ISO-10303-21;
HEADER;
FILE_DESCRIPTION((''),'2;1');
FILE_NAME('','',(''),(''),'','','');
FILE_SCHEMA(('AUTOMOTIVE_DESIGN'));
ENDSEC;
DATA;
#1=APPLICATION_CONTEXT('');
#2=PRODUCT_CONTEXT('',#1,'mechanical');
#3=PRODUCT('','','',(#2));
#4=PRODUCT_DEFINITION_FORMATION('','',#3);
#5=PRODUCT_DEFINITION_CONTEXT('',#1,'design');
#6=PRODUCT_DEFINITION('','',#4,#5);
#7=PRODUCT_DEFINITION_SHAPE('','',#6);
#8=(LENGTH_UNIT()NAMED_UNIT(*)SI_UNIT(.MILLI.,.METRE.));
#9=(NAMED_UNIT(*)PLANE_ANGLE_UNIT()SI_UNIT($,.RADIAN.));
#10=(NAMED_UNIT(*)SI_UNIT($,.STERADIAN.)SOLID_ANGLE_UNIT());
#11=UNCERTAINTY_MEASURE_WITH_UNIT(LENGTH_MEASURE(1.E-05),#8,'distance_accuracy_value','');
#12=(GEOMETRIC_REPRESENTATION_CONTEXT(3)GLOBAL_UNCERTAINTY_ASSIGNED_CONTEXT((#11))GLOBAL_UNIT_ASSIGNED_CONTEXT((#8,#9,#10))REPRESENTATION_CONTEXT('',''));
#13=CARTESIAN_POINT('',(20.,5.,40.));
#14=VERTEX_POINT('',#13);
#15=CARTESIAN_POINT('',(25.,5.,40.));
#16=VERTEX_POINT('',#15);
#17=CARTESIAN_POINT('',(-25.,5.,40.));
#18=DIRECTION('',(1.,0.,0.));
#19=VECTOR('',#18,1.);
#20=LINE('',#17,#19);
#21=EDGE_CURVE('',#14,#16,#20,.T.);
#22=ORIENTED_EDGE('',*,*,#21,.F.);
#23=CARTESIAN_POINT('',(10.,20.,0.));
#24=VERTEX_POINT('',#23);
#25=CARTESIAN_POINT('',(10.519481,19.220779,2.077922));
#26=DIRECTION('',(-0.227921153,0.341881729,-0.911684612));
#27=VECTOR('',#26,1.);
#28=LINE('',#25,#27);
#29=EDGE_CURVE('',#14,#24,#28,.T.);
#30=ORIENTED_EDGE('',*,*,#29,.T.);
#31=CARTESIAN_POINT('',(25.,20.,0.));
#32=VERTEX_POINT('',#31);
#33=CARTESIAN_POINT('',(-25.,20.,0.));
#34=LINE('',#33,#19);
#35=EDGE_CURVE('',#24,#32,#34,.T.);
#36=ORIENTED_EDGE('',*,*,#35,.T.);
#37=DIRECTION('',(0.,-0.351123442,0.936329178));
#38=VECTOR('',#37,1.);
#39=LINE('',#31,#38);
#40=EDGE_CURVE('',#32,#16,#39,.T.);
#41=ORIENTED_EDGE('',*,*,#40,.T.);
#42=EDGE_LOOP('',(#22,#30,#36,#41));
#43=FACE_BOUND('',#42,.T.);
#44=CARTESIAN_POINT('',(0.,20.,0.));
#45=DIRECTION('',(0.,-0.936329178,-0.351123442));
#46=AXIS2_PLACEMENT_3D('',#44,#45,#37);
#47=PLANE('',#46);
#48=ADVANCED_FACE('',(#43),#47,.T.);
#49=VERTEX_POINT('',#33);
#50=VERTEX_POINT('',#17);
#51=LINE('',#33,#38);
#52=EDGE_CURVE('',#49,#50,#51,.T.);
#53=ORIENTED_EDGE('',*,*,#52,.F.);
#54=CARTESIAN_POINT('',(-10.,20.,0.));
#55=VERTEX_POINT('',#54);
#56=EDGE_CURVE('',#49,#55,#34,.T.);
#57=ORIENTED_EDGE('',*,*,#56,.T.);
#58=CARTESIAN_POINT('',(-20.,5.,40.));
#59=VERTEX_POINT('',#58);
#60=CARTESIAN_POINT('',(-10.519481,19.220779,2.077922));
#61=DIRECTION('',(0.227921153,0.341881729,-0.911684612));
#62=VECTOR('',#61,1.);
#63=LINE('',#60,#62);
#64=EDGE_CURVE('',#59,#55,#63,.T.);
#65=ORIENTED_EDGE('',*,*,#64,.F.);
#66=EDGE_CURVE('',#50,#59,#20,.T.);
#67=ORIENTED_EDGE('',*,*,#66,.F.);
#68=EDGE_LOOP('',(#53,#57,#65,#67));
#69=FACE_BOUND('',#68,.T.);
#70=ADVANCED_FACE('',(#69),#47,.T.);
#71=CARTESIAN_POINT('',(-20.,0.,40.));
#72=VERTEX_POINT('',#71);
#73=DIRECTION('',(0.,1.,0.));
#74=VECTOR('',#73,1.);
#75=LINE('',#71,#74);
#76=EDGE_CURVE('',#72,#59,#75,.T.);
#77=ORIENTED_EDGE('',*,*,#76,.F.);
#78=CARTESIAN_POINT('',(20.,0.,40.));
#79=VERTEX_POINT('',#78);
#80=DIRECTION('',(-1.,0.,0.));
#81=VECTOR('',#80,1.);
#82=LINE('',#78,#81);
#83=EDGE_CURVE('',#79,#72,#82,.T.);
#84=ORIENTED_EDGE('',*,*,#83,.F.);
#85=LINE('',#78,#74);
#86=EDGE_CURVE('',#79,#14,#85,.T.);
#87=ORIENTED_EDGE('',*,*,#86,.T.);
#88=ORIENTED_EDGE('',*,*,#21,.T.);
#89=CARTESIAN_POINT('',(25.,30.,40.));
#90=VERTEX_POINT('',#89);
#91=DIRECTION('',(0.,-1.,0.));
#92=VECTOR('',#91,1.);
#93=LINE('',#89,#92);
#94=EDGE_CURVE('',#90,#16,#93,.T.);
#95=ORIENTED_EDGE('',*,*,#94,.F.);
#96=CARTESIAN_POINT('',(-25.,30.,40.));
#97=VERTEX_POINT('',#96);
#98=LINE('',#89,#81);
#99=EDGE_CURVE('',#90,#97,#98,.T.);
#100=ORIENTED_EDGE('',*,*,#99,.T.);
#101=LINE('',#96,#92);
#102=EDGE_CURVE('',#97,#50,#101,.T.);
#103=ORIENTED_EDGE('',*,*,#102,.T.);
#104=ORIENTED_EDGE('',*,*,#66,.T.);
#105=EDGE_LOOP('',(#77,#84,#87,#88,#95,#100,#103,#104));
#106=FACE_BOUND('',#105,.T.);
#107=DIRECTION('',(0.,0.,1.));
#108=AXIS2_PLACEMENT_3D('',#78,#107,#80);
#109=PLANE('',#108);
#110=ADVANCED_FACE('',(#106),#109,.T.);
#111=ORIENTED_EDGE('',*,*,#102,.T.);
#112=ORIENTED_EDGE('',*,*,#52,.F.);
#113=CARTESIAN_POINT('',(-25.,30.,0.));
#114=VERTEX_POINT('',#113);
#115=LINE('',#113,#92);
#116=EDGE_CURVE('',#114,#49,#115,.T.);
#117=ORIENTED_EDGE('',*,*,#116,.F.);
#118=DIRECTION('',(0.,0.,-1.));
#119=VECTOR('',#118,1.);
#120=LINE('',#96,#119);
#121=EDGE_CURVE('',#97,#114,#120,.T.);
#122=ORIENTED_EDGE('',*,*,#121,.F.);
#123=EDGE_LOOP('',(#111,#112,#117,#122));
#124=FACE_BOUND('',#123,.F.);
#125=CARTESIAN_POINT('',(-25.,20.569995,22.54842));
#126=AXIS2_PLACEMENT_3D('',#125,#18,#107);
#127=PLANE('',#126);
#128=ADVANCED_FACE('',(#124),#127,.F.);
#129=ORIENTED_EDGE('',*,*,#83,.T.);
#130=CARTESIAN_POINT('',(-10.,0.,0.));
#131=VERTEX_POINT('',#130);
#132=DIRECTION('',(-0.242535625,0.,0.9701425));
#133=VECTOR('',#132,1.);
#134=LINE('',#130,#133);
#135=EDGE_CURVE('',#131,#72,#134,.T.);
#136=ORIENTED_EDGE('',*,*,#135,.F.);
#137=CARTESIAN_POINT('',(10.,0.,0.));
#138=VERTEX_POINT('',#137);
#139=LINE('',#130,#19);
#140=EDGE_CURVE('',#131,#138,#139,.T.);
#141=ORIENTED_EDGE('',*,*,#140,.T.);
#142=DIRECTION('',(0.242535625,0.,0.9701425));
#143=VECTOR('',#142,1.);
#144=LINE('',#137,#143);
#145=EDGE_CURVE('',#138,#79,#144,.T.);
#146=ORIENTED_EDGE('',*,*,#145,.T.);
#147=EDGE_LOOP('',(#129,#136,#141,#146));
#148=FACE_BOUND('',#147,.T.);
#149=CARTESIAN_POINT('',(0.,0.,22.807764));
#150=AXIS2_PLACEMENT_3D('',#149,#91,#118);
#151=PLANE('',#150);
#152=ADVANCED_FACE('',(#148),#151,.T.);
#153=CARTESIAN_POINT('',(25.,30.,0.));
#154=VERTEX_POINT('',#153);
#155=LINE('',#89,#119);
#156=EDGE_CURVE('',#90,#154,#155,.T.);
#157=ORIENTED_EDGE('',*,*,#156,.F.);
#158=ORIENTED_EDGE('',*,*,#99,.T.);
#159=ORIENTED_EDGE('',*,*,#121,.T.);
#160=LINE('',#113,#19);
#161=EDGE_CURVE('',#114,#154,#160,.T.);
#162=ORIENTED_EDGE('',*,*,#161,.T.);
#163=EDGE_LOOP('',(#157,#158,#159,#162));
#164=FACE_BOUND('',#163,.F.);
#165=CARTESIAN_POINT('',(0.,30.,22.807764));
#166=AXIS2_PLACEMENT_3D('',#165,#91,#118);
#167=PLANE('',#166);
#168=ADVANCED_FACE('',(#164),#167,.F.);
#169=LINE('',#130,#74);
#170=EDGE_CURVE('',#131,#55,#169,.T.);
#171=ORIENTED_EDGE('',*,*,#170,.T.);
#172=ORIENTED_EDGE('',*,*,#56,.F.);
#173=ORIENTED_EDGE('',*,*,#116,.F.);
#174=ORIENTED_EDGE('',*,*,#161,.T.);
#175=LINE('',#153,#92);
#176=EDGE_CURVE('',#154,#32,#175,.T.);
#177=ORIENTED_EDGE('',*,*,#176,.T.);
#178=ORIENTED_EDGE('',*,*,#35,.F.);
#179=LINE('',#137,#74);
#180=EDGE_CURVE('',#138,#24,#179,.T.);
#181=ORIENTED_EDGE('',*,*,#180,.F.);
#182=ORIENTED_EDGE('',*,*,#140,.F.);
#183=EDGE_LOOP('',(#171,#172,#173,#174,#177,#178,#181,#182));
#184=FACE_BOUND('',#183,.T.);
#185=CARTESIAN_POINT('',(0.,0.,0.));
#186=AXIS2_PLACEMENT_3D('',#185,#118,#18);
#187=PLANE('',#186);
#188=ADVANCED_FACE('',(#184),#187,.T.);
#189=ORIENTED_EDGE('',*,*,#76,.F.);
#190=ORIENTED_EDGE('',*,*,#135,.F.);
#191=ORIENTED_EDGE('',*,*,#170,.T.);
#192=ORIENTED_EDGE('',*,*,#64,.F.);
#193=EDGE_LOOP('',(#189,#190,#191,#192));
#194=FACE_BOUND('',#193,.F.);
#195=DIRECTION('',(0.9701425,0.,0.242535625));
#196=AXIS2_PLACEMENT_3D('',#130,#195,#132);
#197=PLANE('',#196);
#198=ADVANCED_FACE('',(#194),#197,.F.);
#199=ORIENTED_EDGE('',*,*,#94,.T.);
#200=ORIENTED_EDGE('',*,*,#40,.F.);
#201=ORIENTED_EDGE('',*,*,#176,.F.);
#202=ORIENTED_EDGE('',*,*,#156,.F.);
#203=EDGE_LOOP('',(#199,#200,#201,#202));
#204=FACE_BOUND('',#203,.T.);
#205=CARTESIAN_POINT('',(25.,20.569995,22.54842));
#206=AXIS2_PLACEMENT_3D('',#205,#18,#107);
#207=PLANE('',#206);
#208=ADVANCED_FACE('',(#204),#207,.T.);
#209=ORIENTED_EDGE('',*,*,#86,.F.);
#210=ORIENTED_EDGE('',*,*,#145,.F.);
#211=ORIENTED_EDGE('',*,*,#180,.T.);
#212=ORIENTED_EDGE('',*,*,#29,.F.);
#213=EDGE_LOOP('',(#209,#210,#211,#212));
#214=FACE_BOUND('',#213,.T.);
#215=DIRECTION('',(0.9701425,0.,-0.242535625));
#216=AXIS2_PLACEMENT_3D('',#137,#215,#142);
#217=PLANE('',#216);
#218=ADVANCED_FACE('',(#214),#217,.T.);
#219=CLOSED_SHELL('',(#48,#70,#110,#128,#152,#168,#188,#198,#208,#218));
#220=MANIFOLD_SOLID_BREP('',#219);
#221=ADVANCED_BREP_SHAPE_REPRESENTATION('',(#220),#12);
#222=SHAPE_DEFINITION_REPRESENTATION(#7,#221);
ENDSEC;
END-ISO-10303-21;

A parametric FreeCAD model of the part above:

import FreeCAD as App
import Part
import Sketcher

doc = App.newDocument("Part")
body = doc.addObject("PartDesign::Body", "Body")

# Sketch on XZ plane
sketch1 = body.newObject("Sketcher::SketchObject", "Sketch")
sketch1.AttachmentSupport = (doc.getObject("XZ_Plane"), [""])
sketch1.MapMode = "FlatFace"
sketch1.addGeometry(Part.LineSegment(App.Vector(-10, 0, 0), App.Vector(10, 0, 0)), False)
sketch1.addGeometry(Part.LineSegment(App.Vector(10, 0, 0), App.Vector(20, 40, 0)), False)
sketch1.addGeometry(Part.LineSegment(App.Vector(20, 40, 0), App.Vector(-20, 40, 0)), False)
sketch1.addGeometry(Part.LineSegment(App.Vector(-20, 40, 0), App.Vector(-10, 0, 0)), False)
sketch1.addConstraint(Sketcher.Constraint("Coincident", 0, 2, 1, 1))
sketch1.addConstraint(Sketcher.Constraint("Coincident", 1, 2, 2, 1))
sketch1.addConstraint(Sketcher.Constraint("Coincident", 2, 2, 3, 1))
sketch1.addConstraint(Sketcher.Constraint("Coincident", 3, 2, 0, 1))
sketch1.addConstraint(Sketcher.Constraint("Horizontal", 0))
sketch1.addConstraint(Sketcher.Constraint("Horizontal", 2))
sketch1.addConstraint(Sketcher.Constraint("Symmetric", 0, 2, 3, 2, -1, 1))
sketch1.addConstraint(Sketcher.Constraint("Equal", 1, 3))
sketch1.addConstraint(Sketcher.Constraint("DistanceX", 0, 1, 0, 2, 20.0))
sketch1.addConstraint(Sketcher.Constraint("DistanceX", 2, 2, 2, 1, 40.0))
sketch1.addConstraint(Sketcher.Constraint("DistanceY", -1, 1, 1, 2, 40.0))
pad1 = body.newObject("PartDesign::Pad", "Pad")
pad1.Profile = sketch1
pad1.Length = 30
pad1.Reversed = True

# Sketch on YZ plane
sketch2 = body.newObject("Sketcher::SketchObject", "Sketch001")
sketch2.AttachmentSupport = (doc.getObject("YZ_Plane"), [""])
sketch2.MapMode = "FlatFace"
sketch2.addGeometry(Part.LineSegment(App.Vector(30, 0, 0), App.Vector(30, 40, 0)), False)
sketch2.addGeometry(Part.LineSegment(App.Vector(30, 40, 0), App.Vector(5, 40, 0)), False)
sketch2.addGeometry(Part.LineSegment(App.Vector(5, 40, 0), App.Vector(20, 0, 0)), False)
sketch2.addGeometry(Part.LineSegment(App.Vector(20, 0, 0), App.Vector(30, 0, 0)), False)
sketch2.addConstraint(Sketcher.Constraint("Coincident", 0, 2, 1, 1))
sketch2.addConstraint(Sketcher.Constraint("Coincident", 1, 2, 2, 1))
sketch2.addConstraint(Sketcher.Constraint("Coincident", 2, 2, 3, 1))
sketch2.addConstraint(Sketcher.Constraint("Coincident", 3, 2, 0, 1))
sketch2.addConstraint(Sketcher.Constraint("Vertical", 0))
sketch2.addConstraint(Sketcher.Constraint("Horizontal", 1))
sketch2.addConstraint(Sketcher.Constraint("Horizontal", 3))
sketch2.addConstraint(Sketcher.Constraint("PointOnObject", 2, 2, -1))
sketch2.addConstraint(Sketcher.Constraint("DistanceX", 1, 2, 1, 1, 25.0))
sketch2.addConstraint(Sketcher.Constraint("DistanceX", 3, 1, 3, 2, 10.0))
sketch2.addConstraint(Sketcher.Constraint("DistanceY", 0, 1, 0, 2, 40.0))
sketch2.addConstraint(Sketcher.Constraint("DistanceX", -1, 1, 0, 2, 30.0))
pad2 = body.newObject("PartDesign::Pad", "Pad001")
pad2.Profile = sketch2
pad2.Length = 50
pad2.Midplane = True

doc.recompute()
